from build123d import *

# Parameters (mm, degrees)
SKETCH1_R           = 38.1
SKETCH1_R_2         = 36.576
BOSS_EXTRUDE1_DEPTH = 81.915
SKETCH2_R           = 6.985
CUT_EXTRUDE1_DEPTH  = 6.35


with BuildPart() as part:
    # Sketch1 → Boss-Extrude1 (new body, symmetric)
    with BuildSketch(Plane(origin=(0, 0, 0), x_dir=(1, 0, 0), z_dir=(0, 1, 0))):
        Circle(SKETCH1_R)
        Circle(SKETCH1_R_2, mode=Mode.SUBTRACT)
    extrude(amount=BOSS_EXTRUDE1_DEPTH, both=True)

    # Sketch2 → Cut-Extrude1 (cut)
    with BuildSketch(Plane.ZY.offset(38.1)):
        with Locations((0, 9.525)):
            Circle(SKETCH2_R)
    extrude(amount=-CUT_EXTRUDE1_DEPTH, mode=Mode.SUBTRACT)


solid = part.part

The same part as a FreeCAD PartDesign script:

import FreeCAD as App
import Part
import Sketcher

V = App.Vector
Q = App.Units.Quantity

doc = App.newDocument("Part")
params = doc.addObject("Spreadsheet::Sheet", "Params")
for row, (alias, value) in enumerate([
    ("sketch1_diameter", "3 in"),
    ("sketch1_diameter2", "2.88 in"),
    ("pad1_length", "6.45 in"),
    ("sketch2_diameter", "0.55 in"),
    ("pocket1_length", "0.25 in"),
], start=1):
    params.set(f"A{row}", alias)
    params.set(f"B{row}", "=" + value)
    params.setAlias(f"B{row}", alias)

body = doc.addObject("PartDesign::Body", "Body")

sketch1 = body.newObject("Sketcher::SketchObject", "Sketch")
sketch1.AttachmentSupport = (doc.getObject("XZ_Plane"), [""])
sketch1.MapMode = "FlatFace"
sketch1.addGeometry(Part.Circle(V(0, 0, 0), V(0, 0, 1), 38), False)
sketch1.addGeometry(Part.Circle(V(0, 0, 0), V(0, 0, 1), 37), False)
sketch1.addConstraint(Sketcher.Constraint("Coincident", 0, 3, -1, 1))
sketch1.addConstraint(Sketcher.Constraint("Coincident", 1, 3, -1, 1))
sketch1.addConstraint(Sketcher.Constraint("Diameter", 0, Q("3 in")))
sketch1.addConstraint(Sketcher.Constraint("Diameter", 1, Q("2.88 in")))
sketch1.setExpression("Constraints[2]", "Params.sketch1_diameter")
sketch1.setExpression("Constraints[3]", "Params.sketch1_diameter2")
pad1 = body.newObject("PartDesign::Pad", "Pad")
pad1.Profile = sketch1
pad1.setExpression("Length", "Params.pad1_length")
pad1.Midplane = True

sketch2 = body.newObject("Sketcher::SketchObject", "Sketch001")
sketch2.AttachmentSupport = (doc.getObject("YZ_Plane"), [""])
sketch2.MapMode = "FlatFace"
sketch2.AttachmentOffset = App.Placement(V(0, 0, -1.5 * 25.4), App.Rotation())
sketch2.addGeometry(Part.Circle(V(10, 0, 0), V(0, 0, 1), 7), False)
sketch2.addConstraint(Sketcher.Constraint("PointOnObject", 0, 3, -1))
sketch2.addConstraint(Sketcher.Constraint("Diameter", 0, Q("0.55 in")))
sketch2.addConstraint(Sketcher.Constraint("DistanceX", -1, 1, 0, 3, Q("0.375 in")))
sketch2.setExpression("Constraints[1]", "Params.sketch2_diameter")
pocket1 = body.newObject("PartDesign::Pocket", "Pocket")
pocket1.Profile = sketch2
pocket1.setExpression("Length", "Params.pocket1_length")
pocket1.Reversed = True

doc.recompute()
